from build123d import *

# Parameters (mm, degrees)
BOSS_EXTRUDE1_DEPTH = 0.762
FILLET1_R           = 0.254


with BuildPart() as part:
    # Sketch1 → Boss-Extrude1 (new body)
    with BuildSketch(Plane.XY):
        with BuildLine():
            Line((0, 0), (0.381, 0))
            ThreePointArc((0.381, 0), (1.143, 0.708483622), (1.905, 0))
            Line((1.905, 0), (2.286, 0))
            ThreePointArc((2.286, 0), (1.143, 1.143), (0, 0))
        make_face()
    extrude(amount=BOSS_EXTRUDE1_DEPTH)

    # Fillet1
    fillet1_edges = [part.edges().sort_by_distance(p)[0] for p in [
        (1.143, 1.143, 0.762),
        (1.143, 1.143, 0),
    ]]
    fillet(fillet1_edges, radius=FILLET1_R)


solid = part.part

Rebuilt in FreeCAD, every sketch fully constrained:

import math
import FreeCAD as App
import Part
import Sketcher
Q = App.Units.Quantity


def edges_at(feature, points):
    """Names of the edges that pass closest to the given points."""
    edges = feature.Shape.Edges
    near = lambda p: min(range(len(edges)), key=lambda i: edges[i].distToShape(Part.Vertex(*p))[0])
    return sorted({f"Edge{near(p) + 1}" for p in points})

doc = App.newDocument("Part")
body = doc.addObject("PartDesign::Body", "Body")

# Sketch on XY plane
sketch1 = body.newObject("Sketcher::SketchObject", "Sketch")
sketch1.AttachmentSupport = (doc.getObject("XY_Plane"), [""])
sketch1.MapMode = "FlatFace"
sketch1.addGeometry(Part.LineSegment(App.Vector(0, 0, 0), App.Vector(0.38, 0, 0)), False)
sketch1.addGeometry(Part.ArcOfCircle(Part.Circle(App.Vector(1.14, -0.06, 0), App.Vector(0, 0, 1), 0.76), math.radians(4), math.radians(176)), False)
sketch1.addGeometry(Part.LineSegment(App.Vector(1.91, 0, 0), App.Vector(2.29, 0, 0)), False)
sketch1.addGeometry(Part.ArcOfCircle(Part.Circle(App.Vector(1.14, 0, 0), App.Vector(0, 0, 1), 1.14), math.radians(0), math.radians(180)), False)
sketch1.addConstraint(Sketcher.Constraint("Coincident", 0, 2, 1, 2))
sketch1.addConstraint(Sketcher.Constraint("Coincident", 1, 1, 2, 1))
sketch1.addConstraint(Sketcher.Constraint("Coincident", 2, 2, 3, 1))
sketch1.addConstraint(Sketcher.Constraint("Coincident", 3, 2, 0, 1))
sketch1.addConstraint(Sketcher.Constraint("Horizontal", 0))
sketch1.addConstraint(Sketcher.Constraint("Horizontal", 2))
sketch1.addConstraint(Sketcher.Constraint("Coincident", 3, 2, -1, 1))
sketch1.addConstraint(Sketcher.Constraint("PointOnObject", 3, 3, -1))
sketch1.addConstraint(Sketcher.Constraint("PointOnObject", 1, 1, -1))
sketch1.addConstraint(Sketcher.Constraint("Vertical", 1, 3, 3, 3))
sketch1.addConstraint(Sketcher.Constraint("Radius", 3, Q("0.045 in")))
sketch1.addConstraint(Sketcher.Constraint("DistanceX", 0, 1, 0, 2, Q("0.015 in")))
sketch1.addConstraint(Sketcher.Constraint("Radius", 1, 0.764021))
pad1 = body.newObject("PartDesign::Pad", "Pad")
pad1.Profile = sketch1
pad1.Length = Q("0.03 in")
doc.recompute()

fillet = body.newObject("PartDesign::Fillet", "Fillet")
fillet.Base = (pad1, edges_at(pad1, [(1.143, 1.143, 0.762), (1.143, 1.143, 0)]))
fillet.Radius = Q("0.01 in")

doc.recompute()
